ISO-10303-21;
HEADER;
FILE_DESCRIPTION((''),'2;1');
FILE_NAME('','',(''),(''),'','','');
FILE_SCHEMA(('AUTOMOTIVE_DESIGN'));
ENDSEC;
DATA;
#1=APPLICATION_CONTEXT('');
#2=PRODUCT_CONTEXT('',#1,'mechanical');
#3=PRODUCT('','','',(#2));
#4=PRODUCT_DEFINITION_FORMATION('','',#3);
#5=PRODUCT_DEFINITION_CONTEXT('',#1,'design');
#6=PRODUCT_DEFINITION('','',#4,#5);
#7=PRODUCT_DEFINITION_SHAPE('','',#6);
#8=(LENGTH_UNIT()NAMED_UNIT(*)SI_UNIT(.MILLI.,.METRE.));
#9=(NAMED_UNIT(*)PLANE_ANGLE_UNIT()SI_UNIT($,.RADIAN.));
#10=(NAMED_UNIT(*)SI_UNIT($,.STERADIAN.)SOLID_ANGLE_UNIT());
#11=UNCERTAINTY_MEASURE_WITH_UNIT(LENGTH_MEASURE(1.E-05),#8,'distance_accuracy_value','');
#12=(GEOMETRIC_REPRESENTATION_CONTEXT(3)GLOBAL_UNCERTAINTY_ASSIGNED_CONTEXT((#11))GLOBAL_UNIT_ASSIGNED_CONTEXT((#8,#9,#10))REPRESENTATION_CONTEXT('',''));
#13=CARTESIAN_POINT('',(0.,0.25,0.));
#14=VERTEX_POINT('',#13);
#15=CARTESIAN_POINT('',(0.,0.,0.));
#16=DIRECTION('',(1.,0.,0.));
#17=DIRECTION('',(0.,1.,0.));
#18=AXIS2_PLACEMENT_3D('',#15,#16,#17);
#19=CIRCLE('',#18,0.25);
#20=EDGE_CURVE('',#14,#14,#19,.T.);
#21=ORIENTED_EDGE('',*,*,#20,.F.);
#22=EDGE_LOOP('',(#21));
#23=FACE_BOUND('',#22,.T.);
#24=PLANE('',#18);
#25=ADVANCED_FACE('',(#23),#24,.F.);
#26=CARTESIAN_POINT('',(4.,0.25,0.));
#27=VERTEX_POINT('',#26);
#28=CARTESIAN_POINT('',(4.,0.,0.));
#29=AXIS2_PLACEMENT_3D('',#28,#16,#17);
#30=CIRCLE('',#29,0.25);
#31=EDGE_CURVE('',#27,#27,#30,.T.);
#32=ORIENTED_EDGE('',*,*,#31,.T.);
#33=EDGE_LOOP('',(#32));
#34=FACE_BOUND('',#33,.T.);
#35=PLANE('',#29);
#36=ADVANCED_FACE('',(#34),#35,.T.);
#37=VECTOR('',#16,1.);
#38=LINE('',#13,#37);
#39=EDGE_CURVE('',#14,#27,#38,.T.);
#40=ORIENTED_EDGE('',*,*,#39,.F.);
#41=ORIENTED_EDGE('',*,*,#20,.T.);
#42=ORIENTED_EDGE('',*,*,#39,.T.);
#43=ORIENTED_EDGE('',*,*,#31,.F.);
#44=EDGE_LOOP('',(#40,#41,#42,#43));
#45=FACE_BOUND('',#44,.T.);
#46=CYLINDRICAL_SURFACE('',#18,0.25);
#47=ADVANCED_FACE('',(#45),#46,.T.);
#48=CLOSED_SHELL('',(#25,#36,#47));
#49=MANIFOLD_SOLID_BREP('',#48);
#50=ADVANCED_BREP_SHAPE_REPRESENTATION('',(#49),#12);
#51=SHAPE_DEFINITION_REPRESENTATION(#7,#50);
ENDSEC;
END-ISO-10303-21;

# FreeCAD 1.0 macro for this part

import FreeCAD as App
import Part
import Sketcher

V = App.Vector
Q = App.Units.Quantity

doc = App.newDocument("Part")
params = doc.addObject("Spreadsheet::Sheet", "Params")
for row, (alias, value) in enumerate([
    ("sketch1_width", "4 mm"),
    ("sketch1_height", "0.25 mm"),
    ("revolution_angle", "360 deg"),
], start=1):
    params.set(f"A{row}", alias)
    params.set(f"B{row}", "=" + value)
    params.setAlias(f"B{row}", alias)

body = doc.addObject("PartDesign::Body", "Body")

sketch1 = doc.addObject("Sketcher::SketchObject", "Sketch")
body.addObject(sketch1)
sketch1.AttachmentSupport = (doc.XY_Plane, [""])
sketch1.MapMode = "FlatFace"
sketch1.addGeometry(Part.LineSegment(V(0, 0.25, 0), V(0, 0, 0)), False)
sketch1.addGeometry(Part.LineSegment(V(0, 0, 0), V(4, 0, 0)), False)
sketch1.addGeometry(Part.LineSegment(V(4, 0, 0), V(4, 0.25, 0)), False)
sketch1.addGeometry(Part.LineSegment(V(4, 0.25, 0), V(0, 0.25, 0)), False)
sketch1.addConstraint(Sketcher.Constraint("Coincident", 0, 2, 1, 1))
sketch1.addConstraint(Sketcher.Constraint("Coincident", 1, 2, 2, 1))
sketch1.addConstraint(Sketcher.Constraint("Coincident", 2, 2, 3, 1))
sketch1.addConstraint(Sketcher.Constraint("Coincident", 3, 2, 0, 1))
sketch1.addConstraint(Sketcher.Constraint("Vertical", 0))
sketch1.addConstraint(Sketcher.Constraint("Horizontal", 1))
sketch1.addConstraint(Sketcher.Constraint("Vertical", 2))
sketch1.addConstraint(Sketcher.Constraint("Horizontal", 3))
sketch1.addConstraint(Sketcher.Constraint("Coincident", 0, 2, -1, 1))
sketch1.addConstraint(Sketcher.Constraint("DistanceX", 1, 1, 1, 2, Q("4 mm")))
sketch1.addConstraint(Sketcher.Constraint("DistanceY", 0, 2, 0, 1, Q("0.25 mm")))
sketch1.setExpression("Constraints[9]", "Params.sketch1_width")
sketch1.setExpression("Constraints[10]", "Params.sketch1_height")
revolution = doc.addObject("PartDesign::Revolution", "Revolution")
body.addObject(revolution)
revolution.Profile = sketch1
revolution.ReferenceAxis = (sketch1, ["H_Axis"])
revolution.setExpression("Angle", "Params.revolution_angle")

doc.recompute()
